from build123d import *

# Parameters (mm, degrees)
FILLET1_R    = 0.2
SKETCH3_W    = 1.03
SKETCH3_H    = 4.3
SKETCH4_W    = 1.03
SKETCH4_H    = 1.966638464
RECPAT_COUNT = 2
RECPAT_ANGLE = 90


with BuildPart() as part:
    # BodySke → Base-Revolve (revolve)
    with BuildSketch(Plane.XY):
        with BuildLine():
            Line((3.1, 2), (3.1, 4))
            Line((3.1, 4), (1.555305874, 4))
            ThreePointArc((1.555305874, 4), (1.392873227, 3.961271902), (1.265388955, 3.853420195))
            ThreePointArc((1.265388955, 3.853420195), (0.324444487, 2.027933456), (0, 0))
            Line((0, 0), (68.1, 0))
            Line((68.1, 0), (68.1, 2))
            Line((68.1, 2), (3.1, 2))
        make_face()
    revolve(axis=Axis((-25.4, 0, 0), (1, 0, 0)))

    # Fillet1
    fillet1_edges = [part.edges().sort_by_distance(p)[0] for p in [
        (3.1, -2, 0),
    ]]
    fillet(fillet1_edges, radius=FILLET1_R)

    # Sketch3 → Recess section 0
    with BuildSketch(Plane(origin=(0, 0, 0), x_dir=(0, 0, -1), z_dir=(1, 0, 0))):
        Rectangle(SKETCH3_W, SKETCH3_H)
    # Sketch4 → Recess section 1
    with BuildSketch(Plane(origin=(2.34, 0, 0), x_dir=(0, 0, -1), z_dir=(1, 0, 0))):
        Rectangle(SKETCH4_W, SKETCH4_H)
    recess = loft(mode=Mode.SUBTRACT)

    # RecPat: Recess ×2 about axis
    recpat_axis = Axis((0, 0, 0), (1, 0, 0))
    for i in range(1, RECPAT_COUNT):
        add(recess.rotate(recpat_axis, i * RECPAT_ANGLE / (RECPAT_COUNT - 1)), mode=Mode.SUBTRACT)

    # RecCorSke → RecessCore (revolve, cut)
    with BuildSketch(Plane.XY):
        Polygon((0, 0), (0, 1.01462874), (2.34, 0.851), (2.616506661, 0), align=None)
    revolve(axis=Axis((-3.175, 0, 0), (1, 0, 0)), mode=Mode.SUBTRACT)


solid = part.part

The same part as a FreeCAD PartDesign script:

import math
import FreeCAD as App
import Part
import Sketcher
from FreeCAD import Vector
Q = App.Units.Quantity


def edges_at(feature, points):
    """Names of the edges that pass closest to the given points."""
    edges = feature.Shape.Edges
    near = lambda p: min(range(len(edges)), key=lambda i: edges[i].distToShape(Part.Vertex(*p))[0])
    return sorted({f"Edge{near(p) + 1}" for p in points})

doc = App.newDocument("Part")
body = doc.addObject("PartDesign::Body", "Body")

# Sketch on XY plane
sketch1 = body.newObject("Sketcher::SketchObject", "Sketch")
sketch1.AttachmentSupport = (doc.getObject("XY_Plane"), [""])
sketch1.MapMode = "FlatFace"
sketch1.addGeometry(Part.LineSegment(Vector(3.1, 2, 0), Vector(3.1, 4, 0)), False)
sketch1.addGeometry(Part.LineSegment(Vector(3.1, 4, 0), Vector(1.56, 4, 0)), False)
sketch1.addGeometry(Part.ArcOfCircle(Part.Circle(Vector(1.56, 3.64, 0), Vector(0, 0, 1), 0.36), math.radians(90), math.radians(144)), False)
sketch1.addGeometry(Part.ArcOfCircle(Part.Circle(Vector(6.5, 0, 0), Vector(0, 0, 1), 6.5), math.radians(144), math.radians(180)), False)
sketch1.addGeometry(Part.LineSegment(Vector(0, 0, 0), Vector(68.1, 0, 0)), False)
sketch1.addGeometry(Part.LineSegment(Vector(68.1, 0, 0), Vector(68.1, 2, 0)), False)
sketch1.addGeometry(Part.LineSegment(Vector(68.1, 2, 0), Vector(3.1, 2, 0)), False)
sketch1.addConstraint(Sketcher.Constraint("Coincident", 0, 2, 1, 1))
sketch1.addConstraint(Sketcher.Constraint("Tangent", 1, 2, 2, 1))
sketch1.addConstraint(Sketcher.Constraint("Tangent", 2, 2, 3, 1))
sketch1.addConstraint(Sketcher.Constraint("Coincident", 3, 2, 4, 1))
sketch1.addConstraint(Sketcher.Constraint("Coincident", 4, 2, 5, 1))
sketch1.addConstraint(Sketcher.Constraint("Coincident", 5, 2, 6, 1))
sketch1.addConstraint(Sketcher.Constraint("Coincident", 6, 2, 0, 1))
sketch1.addConstraint(Sketcher.Constraint("Vertical", 0))
sketch1.addConstraint(Sketcher.Constraint("Horizontal", 1))
sketch1.addConstraint(Sketcher.Constraint("Horizontal", 4))
sketch1.addConstraint(Sketcher.Constraint("Vertical", 5))
sketch1.addConstraint(Sketcher.Constraint("Horizontal", 6))
sketch1.addConstraint(Sketcher.Constraint("Coincident", 3, 2, -1, 1))
sketch1.addConstraint(Sketcher.Constraint("PointOnObject", 3, 3, -1))
sketch1.addConstraint(Sketcher.Constraint("Equal", 0, 5))
sketch1.addConstraint(Sketcher.Constraint("Radius", 3, 6.5))
sketch1.addConstraint(Sketcher.Constraint("DistanceX", 6, 2, 6, 1, 65.0))
sketch1.addConstraint(Sketcher.Constraint("DistanceY", 0, 1, 0, 2, 2.0))
sketch1.addConstraint(Sketcher.Constraint("Radius", 2, 0.36))
sketch1.addConstraint(Sketcher.Constraint("DistanceX", 4, 1, 4, 2, 68.1))
revolution = body.newObject("PartDesign::Revolution", "Revolution")
revolution.Profile = sketch1
revolution.ReferenceAxis = (sketch1, ["H_Axis"])
revolution.Angle = 360
doc.recompute()

fillet = body.newObject("PartDesign::Fillet", "Fillet")
fillet.Base = (revolution, edges_at(revolution, [(3.1, -2, 0)]))
fillet.Radius = 0.2

# Sketch on YZ plane
sketch2 = body.newObject("Sketcher::SketchObject", "Sketch001")
sketch2.AttachmentSupport = (doc.getObject("YZ_Plane"), [""])
sketch2.MapMode = "FlatFace"
sketch2.addGeometry(Part.LineSegment(Vector(2.1, 0.5, 0), Vector(-2.1, 0.5, 0)), False)
sketch2.addGeometry(Part.LineSegment(Vector(-2.1, 0.5, 0), Vector(-2.1, -0.5, 0)), False)
sketch2.addGeometry(Part.LineSegment(Vector(-2.1, -0.5, 0), Vector(2.1, -0.5, 0)), False)
sketch2.addGeometry(Part.LineSegment(Vector(2.1, -0.5, 0), Vector(2.1, 0.5, 0)), False)
sketch2.addConstraint(Sketcher.Constraint("Coincident", 0, 2, 1, 1))
sketch2.addConstraint(Sketcher.Constraint("Coincident", 1, 2, 2, 1))
sketch2.addConstraint(Sketcher.Constraint("Coincident", 2, 2, 3, 1))
sketch2.addConstraint(Sketcher.Constraint("Coincident", 3, 2, 0, 1))
sketch2.addConstraint(Sketcher.Constraint("Horizontal", 0))
sketch2.addConstraint(Sketcher.Constraint("Vertical", 1))
sketch2.addConstraint(Sketcher.Constraint("Horizontal", 2))
sketch2.addConstraint(Sketcher.Constraint("Vertical", 3))
sketch2.addConstraint(Sketcher.Constraint("Symmetric", 0, 2, 2, 2, -1, 1))
sketch2.addConstraint(Sketcher.Constraint("DistanceX", 0, 2, 0, 1, 4.3))
sketch2.addConstraint(Sketcher.Constraint("DistanceY", 1, 2, 1, 1, 1.03))

# Sketch on YZ plane
sketch3 = body.newObject("Sketcher::SketchObject", "Sketch002")
sketch3.AttachmentSupport = (doc.getObject("YZ_Plane"), [""])
sketch3.MapMode = "FlatFace"
sketch3.AttachmentOffset = App.Placement(Vector(0, 0, 2.34), App.Rotation())
sketch3.addGeometry(Part.LineSegment(Vector(1, 0.5, 0), Vector(-1, 0.5, 0)), False)
sketch3.addGeometry(Part.LineSegment(Vector(-1, 0.5, 0), Vector(-1, -0.5, 0)), False)
sketch3.addGeometry(Part.LineSegment(Vector(-1, -0.5, 0), Vector(1, -0.5, 0)), False)
sketch3.addGeometry(Part.LineSegment(Vector(1, -0.5, 0), Vector(1, 0.5, 0)), False)
sketch3.addConstraint(Sketcher.Constraint("Coincident", 0, 2, 1, 1))
sketch3.addConstraint(Sketcher.Constraint("Coincident", 1, 2, 2, 1))
sketch3.addConstraint(Sketcher.Constraint("Coincident", 2, 2, 3, 1))
sketch3.addConstraint(Sketcher.Constraint("Coincident", 3, 2, 0, 1))
sketch3.addConstraint(Sketcher.Constraint("Horizontal", 0))
sketch3.addConstraint(Sketcher.Constraint("Vertical", 1))
sketch3.addConstraint(Sketcher.Constraint("Horizontal", 2))
sketch3.addConstraint(Sketcher.Constraint("Vertical", 3))
sketch3.addConstraint(Sketcher.Constraint("Symmetric", 0, 2, 2, 2, -1, 1))
sketch3.addConstraint(Sketcher.Constraint("DistanceY", 1, 2, 1, 1, 1.03))
sketch3.addConstraint(Sketcher.Constraint("DistanceX", 0, 2, 0, 1, 1.966638))

subtractiveloft = body.newObject("PartDesign::SubtractiveLoft", "SubtractiveLoft")
subtractiveloft.Profile = sketch2
subtractiveloft.Sections = [sketch3]
doc.recompute()

polarpattern = body.newObject("PartDesign::PolarPattern", "PolarPattern")
polarpattern.Originals = [subtractiveloft]
polarpattern.Axis = (doc.getObject("X_Axis"), [""])
polarpattern.Angle = 90
polarpattern.Occurrences = 2
body.Tip = polarpattern

# Sketch on XY plane
sketch4 = body.newObject("Sketcher::SketchObject", "Sketch003")
sketch4.AttachmentSupport = (doc.getObject("XY_Plane"), [""])
sketch4.MapMode = "FlatFace"
sketch4.addGeometry(Part.LineSegment(Vector(0, 1, 0), Vector(0, 0, 0)), False)
sketch4.addGeometry(Part.LineSegment(Vector(0, 0, 0), Vector(2.6, 0, 0)), False)
sketch4.addGeometry(Part.LineSegment(Vector(2.6, 0, 0), Vector(2.3, 0.9, 0)), False)
sketch4.addGeometry(Part.LineSegment(Vector(2.3, 0.9, 0), Vector(0, 1, 0)), False)
sketch4.addConstraint(Sketcher.Constraint("Coincident", 0, 2, 1, 1))
sketch4.addConstraint(Sketcher.Constraint("Coincident", 1, 2, 2, 1))
sketch4.addConstraint(Sketcher.Constraint("Coincident", 2, 2, 3, 1))
sketch4.addConstraint(Sketcher.Constraint("Coincident", 3, 2, 0, 1))
sketch4.addConstraint(Sketcher.Constraint("Vertical", 0))
sketch4.addConstraint(Sketcher.Constraint("Horizontal", 1))
sketch4.addConstraint(Sketcher.Constraint("Coincident", 0, 2, -1, 1))
sketch4.addConstraint(Sketcher.Constraint("Angle", 2, Q("108 deg")))
sketch4.addConstraint(Sketcher.Constraint("Angle", 3, Q("176 deg")))
sketch4.addConstraint(Sketcher.Constraint("DistanceX", -1, 1, 2, 2, 2.34))
sketch4.addConstraint(Sketcher.Constraint("DistanceY", -1, 1, 2, 2, 0.851))
groove = body.newObject("PartDesign::Groove", "Groove")
groove.Profile = sketch4
groove.ReferenceAxis = (sketch4, ["H_Axis"])
groove.Angle = 360

doc.recompute()
